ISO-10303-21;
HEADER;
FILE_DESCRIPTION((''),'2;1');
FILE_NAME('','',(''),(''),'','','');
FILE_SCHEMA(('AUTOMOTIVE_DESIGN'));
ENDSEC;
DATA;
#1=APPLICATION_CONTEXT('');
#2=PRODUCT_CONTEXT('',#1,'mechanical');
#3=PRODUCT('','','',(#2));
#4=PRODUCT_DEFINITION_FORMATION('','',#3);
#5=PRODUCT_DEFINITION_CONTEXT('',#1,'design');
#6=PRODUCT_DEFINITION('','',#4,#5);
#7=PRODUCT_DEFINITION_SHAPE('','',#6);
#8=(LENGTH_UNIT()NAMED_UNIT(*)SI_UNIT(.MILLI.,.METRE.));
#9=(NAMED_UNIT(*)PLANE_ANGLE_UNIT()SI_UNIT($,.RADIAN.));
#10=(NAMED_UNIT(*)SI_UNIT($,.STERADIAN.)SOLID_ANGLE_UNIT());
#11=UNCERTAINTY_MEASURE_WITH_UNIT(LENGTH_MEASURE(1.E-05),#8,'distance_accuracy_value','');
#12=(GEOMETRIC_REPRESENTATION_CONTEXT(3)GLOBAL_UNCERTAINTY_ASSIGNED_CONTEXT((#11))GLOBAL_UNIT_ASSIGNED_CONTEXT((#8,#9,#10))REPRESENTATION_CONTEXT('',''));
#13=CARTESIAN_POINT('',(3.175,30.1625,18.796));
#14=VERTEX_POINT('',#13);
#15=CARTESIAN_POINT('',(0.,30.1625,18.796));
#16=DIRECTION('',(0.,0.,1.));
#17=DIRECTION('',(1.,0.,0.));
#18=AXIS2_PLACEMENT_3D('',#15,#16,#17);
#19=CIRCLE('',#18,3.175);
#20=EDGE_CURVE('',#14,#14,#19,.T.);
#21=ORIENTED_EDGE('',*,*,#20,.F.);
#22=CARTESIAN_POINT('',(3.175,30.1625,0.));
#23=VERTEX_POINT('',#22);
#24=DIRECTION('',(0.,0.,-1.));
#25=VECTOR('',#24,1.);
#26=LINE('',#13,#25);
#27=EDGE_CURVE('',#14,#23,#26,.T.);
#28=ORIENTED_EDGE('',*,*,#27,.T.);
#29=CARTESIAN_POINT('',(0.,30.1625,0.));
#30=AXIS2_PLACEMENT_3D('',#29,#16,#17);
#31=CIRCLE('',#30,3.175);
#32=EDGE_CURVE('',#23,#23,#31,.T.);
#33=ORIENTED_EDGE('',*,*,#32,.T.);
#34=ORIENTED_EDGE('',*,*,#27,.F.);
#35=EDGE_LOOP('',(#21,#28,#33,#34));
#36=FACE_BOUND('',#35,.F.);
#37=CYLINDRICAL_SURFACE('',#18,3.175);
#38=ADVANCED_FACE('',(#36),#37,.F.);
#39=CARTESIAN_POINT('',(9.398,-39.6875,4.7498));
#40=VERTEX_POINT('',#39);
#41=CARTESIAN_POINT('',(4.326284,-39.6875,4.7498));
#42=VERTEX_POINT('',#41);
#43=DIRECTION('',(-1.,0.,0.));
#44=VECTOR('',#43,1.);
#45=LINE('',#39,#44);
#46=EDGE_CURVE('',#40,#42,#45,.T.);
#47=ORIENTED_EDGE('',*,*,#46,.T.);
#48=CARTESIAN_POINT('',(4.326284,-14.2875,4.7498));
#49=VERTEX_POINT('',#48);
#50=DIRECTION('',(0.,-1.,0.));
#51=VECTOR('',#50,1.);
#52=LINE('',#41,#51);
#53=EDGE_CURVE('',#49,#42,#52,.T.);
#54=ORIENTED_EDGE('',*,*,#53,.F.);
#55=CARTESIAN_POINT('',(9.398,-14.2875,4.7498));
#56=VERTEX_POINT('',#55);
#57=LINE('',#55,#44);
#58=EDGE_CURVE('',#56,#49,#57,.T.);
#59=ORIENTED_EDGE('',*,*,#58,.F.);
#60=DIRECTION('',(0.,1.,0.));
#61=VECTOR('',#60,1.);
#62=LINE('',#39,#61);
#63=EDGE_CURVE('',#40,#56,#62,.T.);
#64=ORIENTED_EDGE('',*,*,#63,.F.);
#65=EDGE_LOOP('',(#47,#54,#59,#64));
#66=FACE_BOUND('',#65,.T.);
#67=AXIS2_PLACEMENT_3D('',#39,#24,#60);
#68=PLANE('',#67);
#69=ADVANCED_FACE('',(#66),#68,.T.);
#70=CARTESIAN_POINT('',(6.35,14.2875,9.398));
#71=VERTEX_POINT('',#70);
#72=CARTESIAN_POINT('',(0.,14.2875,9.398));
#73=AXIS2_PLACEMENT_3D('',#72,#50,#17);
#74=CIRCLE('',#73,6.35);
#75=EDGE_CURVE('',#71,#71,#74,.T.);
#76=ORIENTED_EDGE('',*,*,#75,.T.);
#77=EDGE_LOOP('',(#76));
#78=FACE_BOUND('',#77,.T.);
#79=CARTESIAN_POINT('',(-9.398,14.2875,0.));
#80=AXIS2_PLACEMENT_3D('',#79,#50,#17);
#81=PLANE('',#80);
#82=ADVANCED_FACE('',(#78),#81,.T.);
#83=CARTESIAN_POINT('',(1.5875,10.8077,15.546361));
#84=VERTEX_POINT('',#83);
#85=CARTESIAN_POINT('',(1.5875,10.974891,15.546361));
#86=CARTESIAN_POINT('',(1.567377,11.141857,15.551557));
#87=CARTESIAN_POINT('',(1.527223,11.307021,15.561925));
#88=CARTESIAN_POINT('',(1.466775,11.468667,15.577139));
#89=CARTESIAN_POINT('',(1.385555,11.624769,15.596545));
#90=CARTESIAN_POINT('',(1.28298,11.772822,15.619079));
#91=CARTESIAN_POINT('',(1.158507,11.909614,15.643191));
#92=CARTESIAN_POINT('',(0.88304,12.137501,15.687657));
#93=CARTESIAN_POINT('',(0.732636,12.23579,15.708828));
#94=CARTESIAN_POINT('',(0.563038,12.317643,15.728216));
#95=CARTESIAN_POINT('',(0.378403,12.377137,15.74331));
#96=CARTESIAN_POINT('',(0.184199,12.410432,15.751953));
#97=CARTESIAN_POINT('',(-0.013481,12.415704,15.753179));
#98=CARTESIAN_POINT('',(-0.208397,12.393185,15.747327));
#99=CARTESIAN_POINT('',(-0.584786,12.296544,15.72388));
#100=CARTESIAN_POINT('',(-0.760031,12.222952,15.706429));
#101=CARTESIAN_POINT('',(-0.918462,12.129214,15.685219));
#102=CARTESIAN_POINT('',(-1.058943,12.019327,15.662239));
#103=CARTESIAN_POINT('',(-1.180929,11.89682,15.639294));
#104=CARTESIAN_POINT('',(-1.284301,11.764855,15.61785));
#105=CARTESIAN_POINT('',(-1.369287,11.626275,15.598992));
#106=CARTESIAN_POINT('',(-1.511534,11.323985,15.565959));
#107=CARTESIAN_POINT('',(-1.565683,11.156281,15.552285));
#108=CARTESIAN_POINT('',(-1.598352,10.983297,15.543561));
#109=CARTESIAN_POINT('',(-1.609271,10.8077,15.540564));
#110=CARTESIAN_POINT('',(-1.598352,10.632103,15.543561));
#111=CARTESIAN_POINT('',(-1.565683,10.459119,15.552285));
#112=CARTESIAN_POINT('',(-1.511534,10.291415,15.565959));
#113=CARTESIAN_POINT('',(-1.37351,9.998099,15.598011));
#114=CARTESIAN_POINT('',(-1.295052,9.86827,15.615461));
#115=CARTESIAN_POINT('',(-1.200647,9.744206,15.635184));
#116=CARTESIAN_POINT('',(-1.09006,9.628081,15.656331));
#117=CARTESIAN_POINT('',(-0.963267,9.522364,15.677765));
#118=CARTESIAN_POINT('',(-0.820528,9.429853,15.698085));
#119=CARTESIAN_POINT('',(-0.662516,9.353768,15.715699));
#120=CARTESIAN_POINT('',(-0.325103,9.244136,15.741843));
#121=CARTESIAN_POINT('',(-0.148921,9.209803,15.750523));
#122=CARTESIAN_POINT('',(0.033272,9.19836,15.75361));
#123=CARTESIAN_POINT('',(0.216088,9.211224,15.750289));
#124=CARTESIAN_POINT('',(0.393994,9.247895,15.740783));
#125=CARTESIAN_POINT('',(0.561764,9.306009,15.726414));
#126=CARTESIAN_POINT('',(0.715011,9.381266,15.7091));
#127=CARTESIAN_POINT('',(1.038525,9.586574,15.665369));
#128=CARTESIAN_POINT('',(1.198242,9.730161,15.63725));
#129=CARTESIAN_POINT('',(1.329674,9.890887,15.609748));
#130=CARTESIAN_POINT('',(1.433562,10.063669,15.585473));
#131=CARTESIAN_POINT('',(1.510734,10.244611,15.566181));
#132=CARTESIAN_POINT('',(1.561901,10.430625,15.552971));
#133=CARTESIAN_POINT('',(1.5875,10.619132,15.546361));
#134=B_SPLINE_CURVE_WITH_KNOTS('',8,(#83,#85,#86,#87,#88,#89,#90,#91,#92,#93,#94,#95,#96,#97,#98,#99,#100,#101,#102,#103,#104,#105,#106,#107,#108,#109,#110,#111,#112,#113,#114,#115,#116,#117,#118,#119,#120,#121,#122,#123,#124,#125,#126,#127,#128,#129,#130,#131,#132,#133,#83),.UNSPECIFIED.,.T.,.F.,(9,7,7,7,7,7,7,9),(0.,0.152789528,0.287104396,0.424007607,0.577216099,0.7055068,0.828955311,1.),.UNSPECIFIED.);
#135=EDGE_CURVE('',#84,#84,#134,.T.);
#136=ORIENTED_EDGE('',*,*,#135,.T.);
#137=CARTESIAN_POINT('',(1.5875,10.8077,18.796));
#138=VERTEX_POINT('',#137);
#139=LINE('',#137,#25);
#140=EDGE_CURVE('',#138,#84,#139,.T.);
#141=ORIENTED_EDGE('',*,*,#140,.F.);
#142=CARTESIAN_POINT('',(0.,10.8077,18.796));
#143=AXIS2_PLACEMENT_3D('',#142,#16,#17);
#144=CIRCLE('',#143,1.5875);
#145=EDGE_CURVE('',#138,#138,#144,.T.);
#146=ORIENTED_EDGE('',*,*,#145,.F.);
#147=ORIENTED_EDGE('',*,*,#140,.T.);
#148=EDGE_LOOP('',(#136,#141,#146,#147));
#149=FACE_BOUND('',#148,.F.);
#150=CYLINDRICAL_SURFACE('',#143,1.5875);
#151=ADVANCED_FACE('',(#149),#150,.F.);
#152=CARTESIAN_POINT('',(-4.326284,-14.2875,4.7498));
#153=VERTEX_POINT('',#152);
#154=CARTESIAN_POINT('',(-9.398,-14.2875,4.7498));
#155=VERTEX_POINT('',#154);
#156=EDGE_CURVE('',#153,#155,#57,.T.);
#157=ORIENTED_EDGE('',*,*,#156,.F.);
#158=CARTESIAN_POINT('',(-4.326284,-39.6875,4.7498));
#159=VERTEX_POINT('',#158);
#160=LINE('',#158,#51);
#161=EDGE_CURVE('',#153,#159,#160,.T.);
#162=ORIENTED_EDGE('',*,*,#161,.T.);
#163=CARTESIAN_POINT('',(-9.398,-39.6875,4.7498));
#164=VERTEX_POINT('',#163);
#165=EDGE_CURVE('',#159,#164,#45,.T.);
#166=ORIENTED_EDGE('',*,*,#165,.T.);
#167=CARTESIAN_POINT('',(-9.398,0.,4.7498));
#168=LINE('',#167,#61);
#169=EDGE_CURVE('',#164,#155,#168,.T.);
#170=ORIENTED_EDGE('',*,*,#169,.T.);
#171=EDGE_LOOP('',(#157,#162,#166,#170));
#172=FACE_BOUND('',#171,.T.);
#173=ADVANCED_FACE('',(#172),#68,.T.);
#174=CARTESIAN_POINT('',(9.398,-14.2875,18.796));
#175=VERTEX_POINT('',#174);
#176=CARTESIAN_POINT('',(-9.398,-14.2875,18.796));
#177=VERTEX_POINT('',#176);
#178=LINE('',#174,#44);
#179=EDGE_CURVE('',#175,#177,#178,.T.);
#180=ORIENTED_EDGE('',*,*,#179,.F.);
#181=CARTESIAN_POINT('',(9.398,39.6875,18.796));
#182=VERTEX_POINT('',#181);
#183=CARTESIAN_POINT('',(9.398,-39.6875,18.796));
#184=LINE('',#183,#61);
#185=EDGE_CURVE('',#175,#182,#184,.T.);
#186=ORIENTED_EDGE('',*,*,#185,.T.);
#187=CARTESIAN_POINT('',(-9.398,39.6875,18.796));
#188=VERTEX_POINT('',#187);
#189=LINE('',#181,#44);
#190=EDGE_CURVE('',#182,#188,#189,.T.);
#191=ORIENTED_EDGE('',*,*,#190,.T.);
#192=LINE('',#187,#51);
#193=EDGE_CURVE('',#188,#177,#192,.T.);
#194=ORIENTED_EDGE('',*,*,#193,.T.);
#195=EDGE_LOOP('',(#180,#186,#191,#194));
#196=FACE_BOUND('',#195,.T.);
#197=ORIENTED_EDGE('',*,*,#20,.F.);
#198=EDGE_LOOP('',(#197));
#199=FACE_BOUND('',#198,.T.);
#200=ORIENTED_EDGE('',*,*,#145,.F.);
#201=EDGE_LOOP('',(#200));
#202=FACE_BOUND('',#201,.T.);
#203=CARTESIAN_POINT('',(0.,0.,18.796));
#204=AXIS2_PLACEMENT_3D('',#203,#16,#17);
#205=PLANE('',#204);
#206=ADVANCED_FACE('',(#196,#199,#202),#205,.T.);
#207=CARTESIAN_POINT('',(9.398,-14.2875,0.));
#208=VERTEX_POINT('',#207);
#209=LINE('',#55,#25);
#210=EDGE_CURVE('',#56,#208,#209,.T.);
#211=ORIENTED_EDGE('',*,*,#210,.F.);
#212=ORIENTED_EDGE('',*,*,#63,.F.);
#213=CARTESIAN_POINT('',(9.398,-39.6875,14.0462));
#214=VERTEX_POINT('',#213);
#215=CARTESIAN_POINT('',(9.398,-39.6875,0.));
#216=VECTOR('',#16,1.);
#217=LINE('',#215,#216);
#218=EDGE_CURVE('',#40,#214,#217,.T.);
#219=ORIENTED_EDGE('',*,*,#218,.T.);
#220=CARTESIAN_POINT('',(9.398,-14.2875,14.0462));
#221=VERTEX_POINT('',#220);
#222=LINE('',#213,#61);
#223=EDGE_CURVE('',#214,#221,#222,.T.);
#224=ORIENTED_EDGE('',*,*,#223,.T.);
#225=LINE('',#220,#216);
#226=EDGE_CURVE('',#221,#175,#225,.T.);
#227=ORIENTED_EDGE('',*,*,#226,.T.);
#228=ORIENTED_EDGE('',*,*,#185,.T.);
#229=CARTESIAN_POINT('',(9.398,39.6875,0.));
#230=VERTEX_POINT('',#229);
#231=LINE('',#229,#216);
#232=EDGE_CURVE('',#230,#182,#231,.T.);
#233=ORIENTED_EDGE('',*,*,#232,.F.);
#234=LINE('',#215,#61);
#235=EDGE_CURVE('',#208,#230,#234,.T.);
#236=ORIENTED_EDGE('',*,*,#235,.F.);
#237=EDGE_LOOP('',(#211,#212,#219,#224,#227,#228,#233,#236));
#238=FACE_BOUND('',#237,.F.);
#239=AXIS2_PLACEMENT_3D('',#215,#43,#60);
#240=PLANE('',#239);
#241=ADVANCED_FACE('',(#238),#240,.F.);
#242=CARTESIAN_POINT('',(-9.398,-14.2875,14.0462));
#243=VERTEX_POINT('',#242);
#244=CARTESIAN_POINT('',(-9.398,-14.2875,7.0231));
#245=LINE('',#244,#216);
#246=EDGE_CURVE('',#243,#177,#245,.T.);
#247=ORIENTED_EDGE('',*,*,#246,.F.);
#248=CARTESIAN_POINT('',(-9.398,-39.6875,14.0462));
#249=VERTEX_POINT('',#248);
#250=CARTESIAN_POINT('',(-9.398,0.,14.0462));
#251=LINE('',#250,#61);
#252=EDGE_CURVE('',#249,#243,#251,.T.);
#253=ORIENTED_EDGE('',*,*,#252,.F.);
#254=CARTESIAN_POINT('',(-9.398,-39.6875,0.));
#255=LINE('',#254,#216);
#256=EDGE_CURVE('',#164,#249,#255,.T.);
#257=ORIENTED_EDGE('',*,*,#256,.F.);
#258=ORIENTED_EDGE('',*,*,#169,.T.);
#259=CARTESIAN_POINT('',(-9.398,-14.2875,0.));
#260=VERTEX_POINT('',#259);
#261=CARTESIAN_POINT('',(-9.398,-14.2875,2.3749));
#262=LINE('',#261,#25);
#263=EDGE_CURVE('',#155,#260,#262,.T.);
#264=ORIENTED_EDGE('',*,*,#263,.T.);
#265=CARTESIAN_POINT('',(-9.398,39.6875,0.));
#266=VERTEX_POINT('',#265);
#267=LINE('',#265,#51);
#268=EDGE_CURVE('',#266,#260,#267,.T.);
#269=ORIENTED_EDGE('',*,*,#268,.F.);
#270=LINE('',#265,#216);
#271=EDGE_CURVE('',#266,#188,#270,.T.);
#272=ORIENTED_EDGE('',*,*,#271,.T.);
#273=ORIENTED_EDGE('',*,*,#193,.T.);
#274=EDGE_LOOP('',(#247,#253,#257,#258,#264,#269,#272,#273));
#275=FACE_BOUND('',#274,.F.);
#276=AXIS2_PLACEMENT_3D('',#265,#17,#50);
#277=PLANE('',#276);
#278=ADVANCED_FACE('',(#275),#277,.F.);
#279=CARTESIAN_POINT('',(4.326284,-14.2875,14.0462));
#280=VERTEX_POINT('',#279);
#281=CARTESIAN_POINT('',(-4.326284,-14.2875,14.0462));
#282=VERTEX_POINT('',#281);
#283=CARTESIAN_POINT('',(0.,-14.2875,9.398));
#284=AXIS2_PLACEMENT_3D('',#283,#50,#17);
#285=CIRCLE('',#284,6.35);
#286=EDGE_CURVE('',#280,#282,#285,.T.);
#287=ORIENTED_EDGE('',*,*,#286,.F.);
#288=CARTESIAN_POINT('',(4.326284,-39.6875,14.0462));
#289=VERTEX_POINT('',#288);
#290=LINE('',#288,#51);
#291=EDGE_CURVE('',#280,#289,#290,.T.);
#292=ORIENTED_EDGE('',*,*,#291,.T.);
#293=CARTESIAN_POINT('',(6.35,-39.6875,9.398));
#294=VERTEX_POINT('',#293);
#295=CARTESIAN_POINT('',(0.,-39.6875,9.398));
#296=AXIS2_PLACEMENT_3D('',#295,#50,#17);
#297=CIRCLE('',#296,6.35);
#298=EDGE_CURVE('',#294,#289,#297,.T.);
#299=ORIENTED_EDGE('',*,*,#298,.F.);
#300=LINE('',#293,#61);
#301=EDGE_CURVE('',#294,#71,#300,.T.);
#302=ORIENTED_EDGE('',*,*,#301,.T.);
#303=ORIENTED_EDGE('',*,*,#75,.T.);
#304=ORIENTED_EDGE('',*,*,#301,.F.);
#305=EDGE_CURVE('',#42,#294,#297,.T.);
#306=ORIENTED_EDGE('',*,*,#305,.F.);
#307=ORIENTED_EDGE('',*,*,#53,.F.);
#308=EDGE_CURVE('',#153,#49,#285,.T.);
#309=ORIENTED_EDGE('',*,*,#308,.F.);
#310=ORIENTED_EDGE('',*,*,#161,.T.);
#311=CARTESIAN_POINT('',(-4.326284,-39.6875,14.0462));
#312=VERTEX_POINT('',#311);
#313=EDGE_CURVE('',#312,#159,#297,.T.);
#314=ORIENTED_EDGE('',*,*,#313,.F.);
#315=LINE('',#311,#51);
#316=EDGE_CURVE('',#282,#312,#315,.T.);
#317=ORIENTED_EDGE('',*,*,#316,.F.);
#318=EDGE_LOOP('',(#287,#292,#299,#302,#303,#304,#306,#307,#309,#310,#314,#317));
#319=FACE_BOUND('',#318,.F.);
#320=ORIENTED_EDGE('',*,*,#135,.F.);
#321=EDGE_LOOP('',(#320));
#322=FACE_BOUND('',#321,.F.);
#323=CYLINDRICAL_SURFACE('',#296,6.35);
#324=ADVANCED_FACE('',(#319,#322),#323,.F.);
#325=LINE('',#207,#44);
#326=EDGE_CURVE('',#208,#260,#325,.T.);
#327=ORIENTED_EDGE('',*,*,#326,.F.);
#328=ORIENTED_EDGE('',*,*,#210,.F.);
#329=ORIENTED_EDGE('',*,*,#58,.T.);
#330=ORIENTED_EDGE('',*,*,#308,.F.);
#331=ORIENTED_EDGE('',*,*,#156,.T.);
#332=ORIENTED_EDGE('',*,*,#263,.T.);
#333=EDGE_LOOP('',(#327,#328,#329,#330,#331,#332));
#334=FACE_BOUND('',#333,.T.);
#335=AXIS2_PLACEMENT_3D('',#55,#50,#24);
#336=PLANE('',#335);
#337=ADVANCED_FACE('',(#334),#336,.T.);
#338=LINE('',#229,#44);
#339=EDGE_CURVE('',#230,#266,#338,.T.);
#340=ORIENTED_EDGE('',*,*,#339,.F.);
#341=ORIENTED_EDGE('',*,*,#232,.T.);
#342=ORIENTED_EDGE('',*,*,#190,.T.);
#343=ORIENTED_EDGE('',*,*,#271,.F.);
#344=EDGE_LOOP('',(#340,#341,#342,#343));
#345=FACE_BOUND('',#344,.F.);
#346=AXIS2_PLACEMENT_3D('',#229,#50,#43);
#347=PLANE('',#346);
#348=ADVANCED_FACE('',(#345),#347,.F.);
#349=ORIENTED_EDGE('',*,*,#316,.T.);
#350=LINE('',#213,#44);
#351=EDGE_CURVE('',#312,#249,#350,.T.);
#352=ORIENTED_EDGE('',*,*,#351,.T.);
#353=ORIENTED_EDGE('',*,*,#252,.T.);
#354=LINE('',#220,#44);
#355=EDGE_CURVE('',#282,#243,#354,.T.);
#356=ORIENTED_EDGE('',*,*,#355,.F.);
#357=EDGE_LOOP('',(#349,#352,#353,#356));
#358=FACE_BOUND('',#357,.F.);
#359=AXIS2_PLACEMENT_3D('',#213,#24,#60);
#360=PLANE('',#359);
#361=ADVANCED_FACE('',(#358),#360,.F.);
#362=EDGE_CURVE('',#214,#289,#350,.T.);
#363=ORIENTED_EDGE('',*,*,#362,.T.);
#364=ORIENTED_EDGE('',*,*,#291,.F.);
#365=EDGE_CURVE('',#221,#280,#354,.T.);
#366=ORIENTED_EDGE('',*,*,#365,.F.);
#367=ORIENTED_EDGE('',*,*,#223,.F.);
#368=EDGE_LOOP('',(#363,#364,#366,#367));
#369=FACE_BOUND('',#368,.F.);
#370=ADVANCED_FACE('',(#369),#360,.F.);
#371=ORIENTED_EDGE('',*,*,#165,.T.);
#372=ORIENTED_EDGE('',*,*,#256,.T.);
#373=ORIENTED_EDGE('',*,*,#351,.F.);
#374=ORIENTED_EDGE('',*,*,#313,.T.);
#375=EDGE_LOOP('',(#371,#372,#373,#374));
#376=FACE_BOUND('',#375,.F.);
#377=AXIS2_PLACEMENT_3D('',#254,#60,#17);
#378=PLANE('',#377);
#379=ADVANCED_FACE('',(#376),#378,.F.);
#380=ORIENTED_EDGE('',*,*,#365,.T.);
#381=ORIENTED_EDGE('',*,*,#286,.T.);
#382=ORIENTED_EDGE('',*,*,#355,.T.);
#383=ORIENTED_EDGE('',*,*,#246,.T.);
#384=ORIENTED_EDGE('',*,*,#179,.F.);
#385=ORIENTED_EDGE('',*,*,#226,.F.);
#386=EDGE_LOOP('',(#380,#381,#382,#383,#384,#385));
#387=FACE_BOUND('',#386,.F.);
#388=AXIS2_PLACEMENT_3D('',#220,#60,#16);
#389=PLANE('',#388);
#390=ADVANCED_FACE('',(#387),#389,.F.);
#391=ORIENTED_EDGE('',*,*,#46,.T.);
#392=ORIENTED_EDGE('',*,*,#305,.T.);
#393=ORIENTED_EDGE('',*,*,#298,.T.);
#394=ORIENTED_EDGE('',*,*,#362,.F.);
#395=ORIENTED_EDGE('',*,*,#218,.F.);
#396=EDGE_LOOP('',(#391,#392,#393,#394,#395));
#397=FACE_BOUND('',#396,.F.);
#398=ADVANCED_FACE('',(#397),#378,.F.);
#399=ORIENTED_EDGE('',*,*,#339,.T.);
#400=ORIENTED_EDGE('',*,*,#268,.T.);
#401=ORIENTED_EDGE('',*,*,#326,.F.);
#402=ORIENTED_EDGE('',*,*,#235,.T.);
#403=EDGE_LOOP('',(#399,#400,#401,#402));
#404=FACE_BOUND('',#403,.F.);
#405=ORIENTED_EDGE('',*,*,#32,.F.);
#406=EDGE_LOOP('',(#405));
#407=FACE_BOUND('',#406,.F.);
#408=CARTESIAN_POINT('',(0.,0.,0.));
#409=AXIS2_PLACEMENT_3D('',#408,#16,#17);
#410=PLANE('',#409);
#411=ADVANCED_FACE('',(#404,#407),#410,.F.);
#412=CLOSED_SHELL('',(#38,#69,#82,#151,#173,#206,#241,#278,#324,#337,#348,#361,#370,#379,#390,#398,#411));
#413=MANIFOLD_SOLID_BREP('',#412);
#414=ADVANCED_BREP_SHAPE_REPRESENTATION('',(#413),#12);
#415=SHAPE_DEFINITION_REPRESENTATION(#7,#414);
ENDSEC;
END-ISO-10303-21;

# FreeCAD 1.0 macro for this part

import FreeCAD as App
import Part
import Sketcher
Q = App.Units.Quantity

doc = App.newDocument("Part")
body = doc.addObject("PartDesign::Body", "Body")

# Sketch on XY plane
sketch1 = doc.addObject("Sketcher::SketchObject", "Sketch")
body.addObject(sketch1)
sketch1.AttachmentSupport = (doc.XY_Plane, [""])
sketch1.MapMode = "FlatFace"
sketch1.addGeometry([
    Part.LineSegment(App.Vector(-9.398, 39.6875, 0), App.Vector(-9.398, -39.6875, 0)),
    Part.LineSegment(App.Vector(-9.398, -39.6875, 0), App.Vector(9.398, -39.6875, 0)),
    Part.LineSegment(App.Vector(9.398, -39.6875, 0), App.Vector(9.398, 39.6875, 0)),
    Part.LineSegment(App.Vector(9.398, 39.6875, 0), App.Vector(-9.398, 39.6875, 0)),
], False)
sketch1.addConstraint([
    Sketcher.Constraint("Coincident", 0, 2, 1, 1),
    Sketcher.Constraint("Coincident", 1, 2, 2, 1),
    Sketcher.Constraint("Coincident", 2, 2, 3, 1),
    Sketcher.Constraint("Coincident", 3, 2, 0, 1),
    Sketcher.Constraint("Vertical", 0),
    Sketcher.Constraint("Horizontal", 1),
    Sketcher.Constraint("Vertical", 2),
    Sketcher.Constraint("Horizontal", 3),
    Sketcher.Constraint("Symmetric", 0, 2, 2, 2, -1, 1),
    Sketcher.Constraint("DistanceX", 1, 1, 1, 2, Q("0.74 in")),
    Sketcher.Constraint("DistanceY", 0, 2, 0, 1, Q("3.125 in")),
])
pad1 = doc.addObject("PartDesign::Pad", "Pad")
body.addObject(pad1)
pad1.Profile = sketch1
pad1.Length = Q("0.74 in")

# Sketch on XY plane
sketch2 = doc.addObject("Sketcher::SketchObject", "Sketch001")
body.addObject(sketch2)
sketch2.AttachmentSupport = (doc.XY_Plane, [""])
sketch2.MapMode = "FlatFace"
sketch2.AttachmentOffset = App.Placement(App.Vector(0, 0, 0.74 * 25.4), App.Rotation())
sketch2.addGeometry(Part.Circle(App.Vector(0, 30.1625, 0), App.Vector(0, 0, 1), 3.175), False)
sketch2.addConstraint([
    Sketcher.Constraint("PointOnObject", 0, 3, -2),
    Sketcher.Constraint("Diameter", 0, Q("0.25 in")),
    Sketcher.Constraint("DistanceY", -1, 1, 0, 3, Q("1.1875 in")),
])
pocket1 = doc.addObject("PartDesign::Pocket", "Pocket")
body.addObject(pocket1)
pocket1.Profile = sketch2
pocket1.Length = Q("0.74 in")

# Sketch on XY plane
sketch3 = doc.addObject("Sketcher::SketchObject", "Sketch002")
body.addObject(sketch3)
sketch3.AttachmentSupport = (doc.XY_Plane, [""])
sketch3.MapMode = "FlatFace"
sketch3.AttachmentOffset = App.Placement(App.Vector(0, 0, 0.74 * 25.4), App.Rotation())
sketch3.addGeometry(Part.Circle(App.Vector(0, 10.8077, 0), App.Vector(0, 0, 1), 1.5875), False)
sketch3.addConstraint([
    Sketcher.Constraint("PointOnObject", 0, 3, -2),
    Sketcher.Constraint("Diameter", 0, Q("0.125 in")),
    Sketcher.Constraint("DistanceY", -1, 1, 0, 3, Q("0.4255 in")),
])
pocket2 = doc.addObject("PartDesign::Pocket", "Pocket001")
body.addObject(pocket2)
pocket2.Profile = sketch3
pocket2.Length = Q("0.37 in")

# Sketch on XZ plane
sketch4 = doc.addObject("Sketcher::SketchObject", "Sketch003")
body.addObject(sketch4)
sketch4.AttachmentSupport = (doc.XZ_Plane, [""])
sketch4.MapMode = "FlatFace"
sketch4.AttachmentOffset = App.Placement(App.Vector(0, 0, 1.5625 * 25.4), App.Rotation())
sketch4.addGeometry(Part.Circle(App.Vector(0, 9.398, 0), App.Vector(0, 0, 1), 6.35), False)
sketch4.addConstraint([
    Sketcher.Constraint("PointOnObject", 0, 3, -2),
    Sketcher.Constraint("Diameter", 0, Q("0.5 in")),
    Sketcher.Constraint("DistanceY", -1, 1, 0, 3, Q("0.37 in")),
])
pocket3 = doc.addObject("PartDesign::Pocket", "Pocket002")
body.addObject(pocket3)
pocket3.Profile = sketch4
pocket3.Length = Q("2.125 in")

# Sketch on YZ plane
sketch5 = doc.addObject("Sketcher::SketchObject", "Sketch004")
body.addObject(sketch5)
sketch5.AttachmentSupport = (doc.YZ_Plane, [""])
sketch5.MapMode = "FlatFace"
sketch5.AttachmentOffset = App.Placement(App.Vector(0, 0, 0.37 * 25.4), App.Rotation())
sketch5.addGeometry([
    Part.LineSegment(App.Vector(-14.2875, 14.0462, 0), App.Vector(-14.2875, 18.796, 0)),  # 0
    Part.LineSegment(App.Vector(-14.2875, 18.796, 0), App.Vector(-39.6875, 18.796, 0)),  # 1
    Part.LineSegment(App.Vector(-39.6875, 18.796, 0), App.Vector(-39.6875, 14.0462, 0)),  # 2
    Part.LineSegment(App.Vector(-39.6875, 14.0462, 0), App.Vector(-14.2875, 14.0462, 0)),  # 3
    Part.LineSegment(App.Vector(-39.6875, 0, 0), App.Vector(-14.2875, 0, 0)),  # 4
    Part.LineSegment(App.Vector(-14.2875, 0, 0), App.Vector(-14.2875, 4.7498, 0)),  # 5
    Part.LineSegment(App.Vector(-14.2875, 4.7498, 0), App.Vector(-39.6875, 4.7498, 0)),  # 6
    Part.LineSegment(App.Vector(-39.6875, 4.7498, 0), App.Vector(-39.6875, 0, 0)),  # 7
], False)
sketch5.addConstraint([
    Sketcher.Constraint("Coincident", 0, 2, 1, 1),
    Sketcher.Constraint("Coincident", 1, 2, 2, 1),
    Sketcher.Constraint("Coincident", 2, 2, 3, 1),
    Sketcher.Constraint("Coincident", 3, 2, 0, 1),
    Sketcher.Constraint("Coincident", 4, 2, 5, 1),
    Sketcher.Constraint("Coincident", 5, 2, 6, 1),
    Sketcher.Constraint("Coincident", 6, 2, 7, 1),
    Sketcher.Constraint("Coincident", 7, 2, 4, 1),
    Sketcher.Constraint("Vertical", 0),
    Sketcher.Constraint("Horizontal", 1),
    Sketcher.Constraint("Vertical", 2),
    Sketcher.Constraint("Horizontal", 3),
    Sketcher.Constraint("Horizontal", 4),
    Sketcher.Constraint("Vertical", 5),
    Sketcher.Constraint("Horizontal", 6),
    Sketcher.Constraint("Vertical", 7),
    Sketcher.Constraint("PointOnObject", 4, 2, -1),
    Sketcher.Constraint("Vertical", 3, 2, 4, 2),
    Sketcher.Constraint("Vertical", 2, 2, 6, 2),
    Sketcher.Constraint("Equal", 2, 5),
    Sketcher.Constraint("DistanceX", 1, 2, 1, 1, Q("1 in")),
    Sketcher.Constraint("DistanceY", 0, 1, 0, 2, Q("0.187 in")),
    Sketcher.Constraint("DistanceY", -1, 1, 0, 2, Q("0.74 in")),
    Sketcher.Constraint("DistanceX", 0, 2, -1, 1, Q("0.5625 in")),
])
pocket4 = doc.addObject("PartDesign::Pocket", "Pocket003")
body.addObject(pocket4)
pocket4.Profile = sketch5
pocket4.Length = Q("2.125 in")

doc.recompute()
